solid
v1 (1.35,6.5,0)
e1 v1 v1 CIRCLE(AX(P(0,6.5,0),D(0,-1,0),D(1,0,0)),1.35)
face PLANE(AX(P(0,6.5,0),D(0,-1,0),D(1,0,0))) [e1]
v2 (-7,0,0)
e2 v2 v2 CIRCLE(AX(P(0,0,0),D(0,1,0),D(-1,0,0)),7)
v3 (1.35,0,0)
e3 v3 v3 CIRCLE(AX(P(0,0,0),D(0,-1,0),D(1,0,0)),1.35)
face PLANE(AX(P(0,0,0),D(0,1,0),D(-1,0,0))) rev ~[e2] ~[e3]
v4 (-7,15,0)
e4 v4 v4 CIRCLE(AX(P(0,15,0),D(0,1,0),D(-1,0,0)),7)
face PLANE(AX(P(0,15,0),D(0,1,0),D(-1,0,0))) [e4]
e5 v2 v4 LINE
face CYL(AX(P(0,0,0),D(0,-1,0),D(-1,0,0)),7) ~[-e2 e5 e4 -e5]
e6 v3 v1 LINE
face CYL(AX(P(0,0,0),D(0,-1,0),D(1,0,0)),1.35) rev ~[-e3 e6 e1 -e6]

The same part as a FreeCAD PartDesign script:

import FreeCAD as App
import Part
import Sketcher
Q = App.Units.Quantity

doc = App.newDocument("Part")
body = doc.addObject("PartDesign::Body", "Body")

sketch1 = body.newObject("Sketcher::SketchObject", "Sketch")
sketch1.AttachmentSupport = (doc.getObject("XZ_Plane"), [""])
sketch1.MapMode = "FlatFace"
sketch1.addGeometry(Part.Circle(App.Vector(0, 0, 0), App.Vector(0, 0, 1), 7), False)
sketch1.addConstraint([
    Sketcher.Constraint("Coincident", 0, 3, -1, 1),
    Sketcher.Constraint("Diameter", 0, Q("14 mm")),
])
pad1 = body.newObject("PartDesign::Pad", "Pad")
pad1.Profile = sketch1
pad1.Length = 15
pad1.Reversed = True

sketch2 = body.newObject("Sketcher::SketchObject", "Sketch001")
sketch2.AttachmentSupport = (doc.getObject("XZ_Plane"), [""])
sketch2.MapMode = "FlatFace"
sketch2.addGeometry(Part.Circle(App.Vector(0, 0, 0), App.Vector(0, 0, 1), 1.4), False)
sketch2.addConstraint([
    Sketcher.Constraint("Coincident", 0, 3, -1, 1),
    Sketcher.Constraint("Diameter", 0, Q("2.7 mm")),
])
pocket1 = body.newObject("PartDesign::Pocket", "Pocket")
pocket1.Profile = sketch2
pocket1.Length = 6.5

doc.recompute()
